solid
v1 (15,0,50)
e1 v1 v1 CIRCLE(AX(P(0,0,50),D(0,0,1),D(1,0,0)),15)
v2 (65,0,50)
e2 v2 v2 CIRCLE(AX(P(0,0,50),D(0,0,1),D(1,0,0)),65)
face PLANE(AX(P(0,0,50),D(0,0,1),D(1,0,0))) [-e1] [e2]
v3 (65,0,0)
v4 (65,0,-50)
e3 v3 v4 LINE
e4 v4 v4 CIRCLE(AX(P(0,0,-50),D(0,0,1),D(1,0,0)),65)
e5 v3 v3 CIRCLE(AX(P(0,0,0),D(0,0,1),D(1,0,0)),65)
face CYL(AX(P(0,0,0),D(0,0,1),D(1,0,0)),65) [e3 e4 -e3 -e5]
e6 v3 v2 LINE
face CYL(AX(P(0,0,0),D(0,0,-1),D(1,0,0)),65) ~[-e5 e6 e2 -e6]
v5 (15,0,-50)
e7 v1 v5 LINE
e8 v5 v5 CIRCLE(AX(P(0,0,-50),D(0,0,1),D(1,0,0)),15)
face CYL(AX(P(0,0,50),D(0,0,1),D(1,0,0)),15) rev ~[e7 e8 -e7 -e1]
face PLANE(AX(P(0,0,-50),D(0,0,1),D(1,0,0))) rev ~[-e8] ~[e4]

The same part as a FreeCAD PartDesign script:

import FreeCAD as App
import Part
import Sketcher
from FreeCAD import Vector

doc = App.newDocument("Part")
body = doc.addObject("PartDesign::Body", "Body")

# Sketch on XY plane
sketch1 = body.newObject("Sketcher::SketchObject", "Sketch")
sketch1.AttachmentSupport = (doc.getObject("XY_Plane"), [""])
sketch1.MapMode = "FlatFace"
sketch1.addGeometry(Part.Circle(Vector(0, 0, 0), Vector(0, 0, 1), 65), False)
sketch1.addConstraint(Sketcher.Constraint("Coincident", 0, 3, -1, 1))
sketch1.addConstraint(Sketcher.Constraint("Diameter", 0, 130.0))
pad1 = body.newObject("PartDesign::Pad", "Pad")
pad1.Profile = sketch1
pad1.Length = 100
pad1.Midplane = True

# Sketch on XY plane
sketch2 = body.newObject("Sketcher::SketchObject", "Sketch001")
sketch2.AttachmentSupport = (doc.getObject("XY_Plane"), [""])
sketch2.MapMode = "FlatFace"
sketch2.AttachmentOffset = App.Placement(Vector(0, 0, 50), App.Rotation())
sketch2.addGeometry(Part.Circle(Vector(0, 0, 0), Vector(0, 0, 1), 15), False)
sketch2.addConstraint(Sketcher.Constraint("Coincident", 0, 3, -1, 1))
sketch2.addConstraint(Sketcher.Constraint("Diameter", 0, 30.0))
pocket1 = body.newObject("PartDesign::Pocket", "Pocket")
pocket1.Profile = sketch2
pocket1.Type = "ThroughAll"

doc.recompute()
